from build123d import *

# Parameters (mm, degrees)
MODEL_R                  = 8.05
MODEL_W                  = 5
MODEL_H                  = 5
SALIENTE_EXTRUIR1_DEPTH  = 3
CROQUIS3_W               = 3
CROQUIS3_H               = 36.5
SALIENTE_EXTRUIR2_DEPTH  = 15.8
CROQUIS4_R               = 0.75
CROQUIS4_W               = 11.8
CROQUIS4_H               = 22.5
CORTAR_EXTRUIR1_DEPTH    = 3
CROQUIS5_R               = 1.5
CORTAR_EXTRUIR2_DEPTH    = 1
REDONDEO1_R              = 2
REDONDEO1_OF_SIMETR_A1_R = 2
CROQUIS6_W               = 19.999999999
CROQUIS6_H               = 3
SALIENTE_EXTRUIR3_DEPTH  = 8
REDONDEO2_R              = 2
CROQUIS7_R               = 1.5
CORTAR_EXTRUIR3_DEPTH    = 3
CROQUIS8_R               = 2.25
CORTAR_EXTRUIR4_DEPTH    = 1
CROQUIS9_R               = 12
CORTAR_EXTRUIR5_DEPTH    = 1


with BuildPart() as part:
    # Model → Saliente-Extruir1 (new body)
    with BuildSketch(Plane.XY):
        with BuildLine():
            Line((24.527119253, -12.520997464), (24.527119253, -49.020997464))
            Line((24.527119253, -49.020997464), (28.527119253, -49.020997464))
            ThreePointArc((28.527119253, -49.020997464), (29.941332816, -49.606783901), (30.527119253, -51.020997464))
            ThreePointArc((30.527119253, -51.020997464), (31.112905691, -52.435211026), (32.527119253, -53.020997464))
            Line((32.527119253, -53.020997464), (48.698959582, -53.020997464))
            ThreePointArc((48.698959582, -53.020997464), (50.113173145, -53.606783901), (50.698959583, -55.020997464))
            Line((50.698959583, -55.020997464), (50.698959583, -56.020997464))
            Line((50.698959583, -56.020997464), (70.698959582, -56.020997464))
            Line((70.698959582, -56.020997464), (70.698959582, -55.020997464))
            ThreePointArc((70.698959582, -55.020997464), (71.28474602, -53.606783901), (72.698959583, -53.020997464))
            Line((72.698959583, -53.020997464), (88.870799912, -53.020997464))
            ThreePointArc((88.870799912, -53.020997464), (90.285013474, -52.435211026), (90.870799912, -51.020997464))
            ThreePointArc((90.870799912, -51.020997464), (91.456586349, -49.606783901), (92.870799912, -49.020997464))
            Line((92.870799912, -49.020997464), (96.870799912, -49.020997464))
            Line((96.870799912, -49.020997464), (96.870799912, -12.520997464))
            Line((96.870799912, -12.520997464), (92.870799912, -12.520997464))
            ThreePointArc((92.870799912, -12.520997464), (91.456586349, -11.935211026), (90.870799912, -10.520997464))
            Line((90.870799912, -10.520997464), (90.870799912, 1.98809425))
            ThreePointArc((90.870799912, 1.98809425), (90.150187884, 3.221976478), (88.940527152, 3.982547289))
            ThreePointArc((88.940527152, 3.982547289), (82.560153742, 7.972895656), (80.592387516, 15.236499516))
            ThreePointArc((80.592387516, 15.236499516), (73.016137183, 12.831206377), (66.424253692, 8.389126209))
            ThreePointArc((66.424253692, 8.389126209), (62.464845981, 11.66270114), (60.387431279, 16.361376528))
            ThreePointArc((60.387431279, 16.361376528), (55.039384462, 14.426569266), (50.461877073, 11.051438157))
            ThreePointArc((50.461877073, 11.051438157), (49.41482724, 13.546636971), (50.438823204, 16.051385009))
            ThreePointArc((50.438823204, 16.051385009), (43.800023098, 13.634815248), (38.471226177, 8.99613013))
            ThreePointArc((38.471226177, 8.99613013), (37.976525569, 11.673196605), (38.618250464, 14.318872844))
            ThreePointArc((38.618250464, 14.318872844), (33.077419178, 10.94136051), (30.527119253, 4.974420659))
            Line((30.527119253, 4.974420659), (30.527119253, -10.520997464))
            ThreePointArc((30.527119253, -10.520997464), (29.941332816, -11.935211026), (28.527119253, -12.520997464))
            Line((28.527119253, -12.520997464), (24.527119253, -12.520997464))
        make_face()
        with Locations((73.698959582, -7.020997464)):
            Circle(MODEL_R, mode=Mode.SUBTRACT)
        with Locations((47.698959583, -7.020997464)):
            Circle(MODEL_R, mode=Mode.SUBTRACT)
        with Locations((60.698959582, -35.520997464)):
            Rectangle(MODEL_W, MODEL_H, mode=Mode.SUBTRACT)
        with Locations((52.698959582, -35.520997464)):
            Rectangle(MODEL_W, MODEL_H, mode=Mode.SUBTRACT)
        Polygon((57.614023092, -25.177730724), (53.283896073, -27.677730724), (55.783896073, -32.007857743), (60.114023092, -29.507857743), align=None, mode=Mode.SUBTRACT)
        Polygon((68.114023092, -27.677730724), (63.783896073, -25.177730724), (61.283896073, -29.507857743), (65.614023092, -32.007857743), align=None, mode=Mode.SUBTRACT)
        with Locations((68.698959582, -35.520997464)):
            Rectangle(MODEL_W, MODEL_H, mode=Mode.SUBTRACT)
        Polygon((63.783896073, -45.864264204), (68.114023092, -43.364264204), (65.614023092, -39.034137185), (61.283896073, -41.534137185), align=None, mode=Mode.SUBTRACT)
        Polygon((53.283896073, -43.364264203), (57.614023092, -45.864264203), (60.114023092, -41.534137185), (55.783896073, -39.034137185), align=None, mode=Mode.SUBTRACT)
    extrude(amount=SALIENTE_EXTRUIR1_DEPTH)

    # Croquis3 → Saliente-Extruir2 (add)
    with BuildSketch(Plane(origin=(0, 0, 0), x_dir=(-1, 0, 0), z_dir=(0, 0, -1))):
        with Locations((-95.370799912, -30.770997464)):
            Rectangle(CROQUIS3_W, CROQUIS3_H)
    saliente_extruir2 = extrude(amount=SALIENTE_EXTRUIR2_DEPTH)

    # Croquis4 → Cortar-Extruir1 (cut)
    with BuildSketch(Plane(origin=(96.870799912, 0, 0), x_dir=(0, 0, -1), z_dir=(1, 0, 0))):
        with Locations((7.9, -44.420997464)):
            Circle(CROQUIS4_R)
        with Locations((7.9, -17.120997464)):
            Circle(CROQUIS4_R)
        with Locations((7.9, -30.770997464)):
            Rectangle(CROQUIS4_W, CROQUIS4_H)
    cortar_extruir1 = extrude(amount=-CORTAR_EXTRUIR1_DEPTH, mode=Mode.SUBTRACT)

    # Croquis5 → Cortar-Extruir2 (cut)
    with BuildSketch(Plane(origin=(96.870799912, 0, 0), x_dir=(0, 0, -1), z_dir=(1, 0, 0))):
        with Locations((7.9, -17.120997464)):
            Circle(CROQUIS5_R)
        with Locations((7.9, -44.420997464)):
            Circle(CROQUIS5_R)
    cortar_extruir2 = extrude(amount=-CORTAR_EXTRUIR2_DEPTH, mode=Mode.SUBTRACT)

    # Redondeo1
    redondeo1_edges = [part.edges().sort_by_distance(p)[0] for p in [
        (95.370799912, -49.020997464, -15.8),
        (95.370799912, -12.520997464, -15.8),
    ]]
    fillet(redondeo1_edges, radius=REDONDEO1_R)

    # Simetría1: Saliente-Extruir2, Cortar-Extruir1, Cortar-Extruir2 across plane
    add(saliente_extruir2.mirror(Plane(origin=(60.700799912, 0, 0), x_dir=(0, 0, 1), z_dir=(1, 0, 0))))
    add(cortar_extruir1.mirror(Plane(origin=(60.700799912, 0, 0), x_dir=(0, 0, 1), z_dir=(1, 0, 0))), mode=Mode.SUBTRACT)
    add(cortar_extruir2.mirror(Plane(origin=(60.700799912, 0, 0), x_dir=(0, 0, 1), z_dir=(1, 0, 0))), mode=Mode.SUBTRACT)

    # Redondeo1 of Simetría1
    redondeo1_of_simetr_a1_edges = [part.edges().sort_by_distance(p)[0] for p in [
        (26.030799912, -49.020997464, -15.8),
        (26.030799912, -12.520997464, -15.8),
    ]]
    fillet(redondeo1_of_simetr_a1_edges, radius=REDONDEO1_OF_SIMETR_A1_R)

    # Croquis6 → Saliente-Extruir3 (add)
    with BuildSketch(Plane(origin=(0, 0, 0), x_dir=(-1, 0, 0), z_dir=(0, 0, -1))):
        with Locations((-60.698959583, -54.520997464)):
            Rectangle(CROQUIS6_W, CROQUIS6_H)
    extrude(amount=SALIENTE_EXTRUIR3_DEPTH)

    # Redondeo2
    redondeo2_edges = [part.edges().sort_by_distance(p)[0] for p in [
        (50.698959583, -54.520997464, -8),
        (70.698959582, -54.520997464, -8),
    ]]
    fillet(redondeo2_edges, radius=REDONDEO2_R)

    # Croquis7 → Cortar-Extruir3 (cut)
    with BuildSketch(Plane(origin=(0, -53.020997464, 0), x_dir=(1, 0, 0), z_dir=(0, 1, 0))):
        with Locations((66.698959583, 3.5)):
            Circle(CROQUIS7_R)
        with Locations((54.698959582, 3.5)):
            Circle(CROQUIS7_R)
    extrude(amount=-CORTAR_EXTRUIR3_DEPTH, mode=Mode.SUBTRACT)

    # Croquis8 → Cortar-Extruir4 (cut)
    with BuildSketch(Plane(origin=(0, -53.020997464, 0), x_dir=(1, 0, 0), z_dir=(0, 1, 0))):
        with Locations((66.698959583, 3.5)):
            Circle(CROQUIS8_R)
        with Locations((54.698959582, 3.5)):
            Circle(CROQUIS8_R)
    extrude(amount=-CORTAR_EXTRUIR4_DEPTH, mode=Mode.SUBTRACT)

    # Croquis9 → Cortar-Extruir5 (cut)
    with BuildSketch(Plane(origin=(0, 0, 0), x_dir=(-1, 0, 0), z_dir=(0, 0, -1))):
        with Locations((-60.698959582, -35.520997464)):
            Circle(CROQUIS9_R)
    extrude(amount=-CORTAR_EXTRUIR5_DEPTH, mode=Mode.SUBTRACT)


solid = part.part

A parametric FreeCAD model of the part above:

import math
import FreeCAD as App
import Part
import Sketcher
Q = App.Units.Quantity


def edges_at(feature, points):
    """Names of the edges that pass closest to the given points."""
    edges = feature.Shape.Edges
    near = lambda p: min(range(len(edges)), key=lambda i: edges[i].distToShape(Part.Vertex(*p))[0])
    return sorted({f"Edge{near(p) + 1}" for p in points})

doc = App.newDocument("Part")
body = doc.addObject("PartDesign::Body", "Body")

sketch1 = body.newObject("Sketcher::SketchObject", "Sketch")
sketch1.AttachmentSupport = (doc.getObject("XY_Plane"), [""])
sketch1.MapMode = "FlatFace"
sketch1.addGeometry([
    Part.LineSegment(App.Vector(24.527119, -12.520997, 0), App.Vector(24.527119, -49.020997, 0)),
    Part.LineSegment(App.Vector(24.527119, -49.020997, 0), App.Vector(28.527119, -49.020997, 0)),
    Part.ArcOfCircle(Part.Circle(App.Vector(28.527119, -51.020997, 0), App.Vector(0, 0, 1), 2), math.radians(0), math.radians(90)),
    Part.ArcOfCircle(Part.Circle(App.Vector(32.527119, -51.020997, 0), App.Vector(0, 0, 1), 2), math.radians(-180), math.radians(-90)),
    Part.LineSegment(App.Vector(32.527119, -53.020997, 0), App.Vector(48.69896, -53.020997, 0)),
    Part.ArcOfCircle(Part.Circle(App.Vector(48.69896, -55.020997, 0), App.Vector(0, 0, 1), 2), math.radians(0), math.radians(90)),
    Part.LineSegment(App.Vector(50.69896, -55.020997, 0), App.Vector(50.69896, -56.020997, 0)),
    Part.LineSegment(App.Vector(50.69896, -56.020997, 0), App.Vector(70.69896, -56.020997, 0)),
    Part.LineSegment(App.Vector(70.69896, -56.020997, 0), App.Vector(70.69896, -55.020997, 0)),
    Part.ArcOfCircle(Part.Circle(App.Vector(72.69896, -55.020997, 0), App.Vector(0, 0, 1), 2), math.radians(90), math.radians(180)),
    Part.LineSegment(App.Vector(72.69896, -53.020997, 0), App.Vector(88.8708, -53.020997, 0)),
    Part.ArcOfCircle(Part.Circle(App.Vector(88.8708, -51.020997, 0), App.Vector(0, 0, 1), 2), math.radians(-90), math.radians(0)),
    Part.ArcOfCircle(Part.Circle(App.Vector(92.8708, -51.020997, 0), App.Vector(0, 0, 1), 2), math.radians(90), math.radians(180)),
    Part.LineSegment(App.Vector(92.8708, -49.020997, 0), App.Vector(96.8708, -49.020997, 0)),
    Part.LineSegment(App.Vector(96.8708, -49.020997, 0), App.Vector(96.8708, -12.520997, 0)),
    Part.LineSegment(App.Vector(96.8708, -12.520997, 0), App.Vector(92.8708, -12.520997, 0)),
    Part.ArcOfCircle(Part.Circle(App.Vector(92.8708, -10.520997, 0), App.Vector(0, 0, 1), 2), math.radians(180), math.radians(270)),
    Part.LineSegment(App.Vector(90.8708, -10.520997, 0), App.Vector(90.8708, 1.988094, 0)),
    Part.ArcOfCircle(Part.Circle(App.Vector(87.994466, 1.135625, 0), App.Vector(0, 0, 1), 3), math.radians(16.508438), math.radians(71.617836)),
    Part.ArcOfCircle(Part.Circle(App.Vector(90.83885, 14.114002, 0), App.Vector(0, 0, 1), 10.307764), math.radians(173.74819), math.radians(259.387581)),
    Part.ArcOfCircle(Part.Circle(App.Vector(85.170016, -12.316798, 0), App.Vector(0, 0, 1), 27.930966), math.radians(99.432804), math.radians(132.15559)),
    Part.ArcOfCircle(Part.Circle(App.Vector(71.378093, 18.412074, 0), App.Vector(0, 0, 1), 11.18034), math.radians(-169.430975), math.radians(-116.300872)),
    Part.ArcOfCircle(Part.Circle(App.Vector(64.379976, -3.033247, 0), App.Vector(0, 0, 1), 19.801309), math.radians(101.632314), math.radians(134.659156)),
    Part.ArcOfCircle(Part.Circle(App.Vector(52.950324, 13.562939, 0), App.Vector(0, 0, 1), 3.535534), math.radians(135.264179), math.radians(225.264179)),
    Part.ArcOfCircle(Part.Circle(App.Vector(53.626856, -3.034119, 0), App.Vector(0, 0, 1), 19.349935), math.radians(99.483105), math.radians(141.558127)),
    Part.ArcOfCircle(Part.Circle(App.Vector(44.493242, 11.493192, 0), App.Vector(0, 0, 1), 6.519202), math.radians(154.313956), math.radians(202.521611)),
    Part.ArcOfCircle(Part.Circle(App.Vector(41.124657, 3.973456, 0), App.Vector(0, 0, 1), 10.644704), math.radians(103.618763), math.radians(174.604272)),
    Part.LineSegment(App.Vector(30.527119, 4.974421, 0), App.Vector(30.527119, -10.520997, 0)),
    Part.ArcOfCircle(Part.Circle(App.Vector(28.527119, -10.520997, 0), App.Vector(0, 0, 1), 2), math.radians(-90), math.radians(0)),
    Part.LineSegment(App.Vector(28.527119, -12.520997, 0), App.Vector(24.527119, -12.520997, 0)),
    Part.LineSegment(App.Vector(57.614023, -45.864264, 0), App.Vector(53.283896, -43.364264, 0)),
    Part.LineSegment(App.Vector(53.283896, -43.364264, 0), App.Vector(55.783896, -39.034137, 0)),
    Part.LineSegment(App.Vector(55.783896, -39.034137, 0), App.Vector(60.114023, -41.534137, 0)),
    Part.LineSegment(App.Vector(60.114023, -41.534137, 0), App.Vector(57.614023, -45.864264, 0)),
    Part.LineSegment(App.Vector(55.19896, -38.020997, 0), App.Vector(50.19896, -38.020997, 0)),
    Part.LineSegment(App.Vector(50.19896, -38.020997, 0), App.Vector(50.19896, -33.020997, 0)),
    Part.LineSegment(App.Vector(50.19896, -33.020997, 0), App.Vector(55.19896, -33.020997, 0)),
    Part.LineSegment(App.Vector(55.19896, -33.020997, 0), App.Vector(55.19896, -38.020997, 0)),
    Part.LineSegment(App.Vector(63.19896, -38.020997, 0), App.Vector(58.19896, -38.020997, 0)),
    Part.LineSegment(App.Vector(58.19896, -38.020997, 0), App.Vector(58.19896, -33.020997, 0)),
    Part.LineSegment(App.Vector(58.19896, -33.020997, 0), App.Vector(63.19896, -33.020997, 0)),
    Part.LineSegment(App.Vector(63.19896, -33.020997, 0), App.Vector(63.19896, -38.020997, 0)),
    Part.LineSegment(App.Vector(53.283896, -27.677731, 0), App.Vector(57.614023, -25.177731, 0)),
    Part.LineSegment(App.Vector(57.614023, -25.177731, 0), App.Vector(60.114023, -29.507858, 0)),
    Part.LineSegment(App.Vector(60.114023, -29.507858, 0), App.Vector(55.783896, -32.007858, 0)),
    Part.LineSegment(App.Vector(55.783896, -32.007858, 0), App.Vector(53.283896, -27.677731, 0)),
    Part.LineSegment(App.Vector(68.114023, -43.364264, 0), App.Vector(63.783896, -45.864264, 0)),
    Part.LineSegment(App.Vector(63.783896, -45.864264, 0), App.Vector(61.283896, -41.534137, 0)),
    Part.LineSegment(App.Vector(61.283896, -41.534137, 0), App.Vector(65.614023, -39.034137, 0)),
    Part.LineSegment(App.Vector(65.614023, -39.034137, 0), App.Vector(68.114023, -43.364264, 0)),
    Part.LineSegment(App.Vector(71.19896, -38.020997, 0), App.Vector(66.19896, -38.020997, 0)),
    Part.LineSegment(App.Vector(66.19896, -38.020997, 0), App.Vector(66.19896, -33.020997, 0)),
    Part.LineSegment(App.Vector(66.19896, -33.020997, 0), App.Vector(71.19896, -33.020997, 0)),
    Part.LineSegment(App.Vector(71.19896, -33.020997, 0), App.Vector(71.19896, -38.020997, 0)),
    Part.LineSegment(App.Vector(63.783896, -25.177731, 0), App.Vector(68.114023, -27.677731, 0)),
    Part.LineSegment(App.Vector(68.114023, -27.677731, 0), App.Vector(65.614023, -32.007858, 0)),
    Part.LineSegment(App.Vector(65.614023, -32.007858, 0), App.Vector(61.283896, -29.507858, 0)),
    Part.LineSegment(App.Vector(61.283896, -29.507858, 0), App.Vector(63.783896, -25.177731, 0)),
    Part.Circle(App.Vector(47.69896, -7.020997, 0), App.Vector(0, 0, 1), 8.05),
    Part.Circle(App.Vector(73.69896, -7.020997, 0), App.Vector(0, 0, 1), 8.05),
], False)
sketch1.addConstraint([
    Sketcher.Constraint("Coincident", 0, 2, 1, 1),
    Sketcher.Constraint("Tangent", 1, 2, 2, 2),
    Sketcher.Constraint("Tangent", 2, 1, 3, 1),
    Sketcher.Constraint("Tangent", 3, 2, 4, 1),
    Sketcher.Constraint("Tangent", 4, 2, 5, 2),
    Sketcher.Constraint("Tangent", 5, 1, 6, 1),
    Sketcher.Constraint("Coincident", 6, 2, 7, 1),
    Sketcher.Constraint("Coincident", 7, 2, 8, 1),
    Sketcher.Constraint("Tangent", 8, 2, 9, 2),
    Sketcher.Constraint("Tangent", 9, 1, 10, 1),
    Sketcher.Constraint("Tangent", 10, 2, 11, 1),
    Sketcher.Constraint("Tangent", 11, 2, 12, 2),
    Sketcher.Constraint("Tangent", 12, 1, 13, 1),
    Sketcher.Constraint("Coincident", 13, 2, 14, 1),
    Sketcher.Constraint("Coincident", 14, 2, 15, 1),
    Sketcher.Constraint("Tangent", 15, 2, 16, 2),
    Sketcher.Constraint("Tangent", 16, 1, 17, 1),
    Sketcher.Constraint("Coincident", 17, 2, 18, 1),
    Sketcher.Constraint("Coincident", 18, 2, 19, 2),
    Sketcher.Constraint("Coincident", 19, 1, 20, 1),
    Sketcher.Constraint("Coincident", 20, 2, 21, 2),
    Sketcher.Constraint("Coincident", 21, 1, 22, 1),
    Sketcher.Constraint("Coincident", 22, 2, 23, 2),
    Sketcher.Constraint("Coincident", 23, 1, 24, 1),
    Sketcher.Constraint("Coincident", 24, 2, 25, 2),
    Sketcher.Constraint("Coincident", 25, 1, 26, 1),
    Sketcher.Constraint("Coincident", 26, 2, 27, 1),
    Sketcher.Constraint("Tangent", 27, 2, 28, 2),
    Sketcher.Constraint("Tangent", 28, 1, 29, 1),
    Sketcher.Constraint("Coincident", 29, 2, 0, 1),
    Sketcher.Constraint("Coincident", 30, 2, 31, 1),
    Sketcher.Constraint("Coincident", 31, 2, 32, 1),
    Sketcher.Constraint("Coincident", 32, 2, 33, 1),
    Sketcher.Constraint("Coincident", 33, 2, 30, 1),
    Sketcher.Constraint("Coincident", 34, 2, 35, 1),
    Sketcher.Constraint("Coincident", 35, 2, 36, 1),
    Sketcher.Constraint("Coincident", 36, 2, 37, 1),
    Sketcher.Constraint("Coincident", 37, 2, 34, 1),
    Sketcher.Constraint("Coincident", 38, 2, 39, 1),
    Sketcher.Constraint("Coincident", 39, 2, 40, 1),
    Sketcher.Constraint("Coincident", 40, 2, 41, 1),
    Sketcher.Constraint("Coincident", 41, 2, 38, 1),
    Sketcher.Constraint("Coincident", 42, 2, 43, 1),
    Sketcher.Constraint("Coincident", 43, 2, 44, 1),
    Sketcher.Constraint("Coincident", 44, 2, 45, 1),
    Sketcher.Constraint("Coincident", 45, 2, 42, 1),
    Sketcher.Constraint("Coincident", 46, 2, 47, 1),
    Sketcher.Constraint("Coincident", 47, 2, 48, 1),
    Sketcher.Constraint("Coincident", 48, 2, 49, 1),
    Sketcher.Constraint("Coincident", 49, 2, 46, 1),
    Sketcher.Constraint("Coincident", 50, 2, 51, 1),
    Sketcher.Constraint("Coincident", 51, 2, 52, 1),
    Sketcher.Constraint("Coincident", 52, 2, 53, 1),
    Sketcher.Constraint("Coincident", 53, 2, 50, 1),
    Sketcher.Constraint("Coincident", 54, 2, 55, 1),
    Sketcher.Constraint("Coincident", 55, 2, 56, 1),
    Sketcher.Constraint("Coincident", 56, 2, 57, 1),
    Sketcher.Constraint("Coincident", 57, 2, 54, 1),
    Sketcher.Constraint("Vertical", 0),
    Sketcher.Constraint("Horizontal", 1),
    Sketcher.Constraint("Horizontal", 4),
    Sketcher.Constraint("Vertical", 6),
    Sketcher.Constraint("Horizontal", 7),
    Sketcher.Constraint("Vertical", 8),
    Sketcher.Constraint("Horizontal", 10),
    Sketcher.Constraint("Horizontal", 13),
    Sketcher.Constraint("Vertical", 14),
    Sketcher.Constraint("Horizontal", 15),
    Sketcher.Constraint("Vertical", 17),
    Sketcher.Constraint("Vertical", 27),
    Sketcher.Constraint("Horizontal", 29),
    Sketcher.Constraint("Horizontal", 34),
    Sketcher.Constraint("Vertical", 35),
    Sketcher.Constraint("Horizontal", 36),
    Sketcher.Constraint("Vertical", 37),
    Sketcher.Constraint("Horizontal", 38),
    Sketcher.Constraint("Vertical", 39),
    Sketcher.Constraint("Horizontal", 40),
    Sketcher.Constraint("Vertical", 41),
    Sketcher.Constraint("Horizontal", 50),
    Sketcher.Constraint("Vertical", 51),
    Sketcher.Constraint("Horizontal", 52),
    Sketcher.Constraint("Vertical", 53),
    Sketcher.Constraint("Equal", 2, 3),
    Sketcher.Constraint("Equal", 3, 5),
    Sketcher.Constraint("Equal", 5, 9),
    Sketcher.Constraint("Equal", 9, 11),
    Sketcher.Constraint("Equal", 11, 12),
    Sketcher.Constraint("Equal", 12, 16),
    Sketcher.Constraint("Equal", 16, 28),
    Sketcher.Constraint("Equal", 58, 59),
    Sketcher.Constraint("Perpendicular", 30, 31),
    Sketcher.Constraint("Perpendicular", 31, 32),
    Sketcher.Constraint("Perpendicular", 32, 33),
    Sketcher.Constraint("Perpendicular", 42, 43),
    Sketcher.Constraint("Perpendicular", 43, 44),
    Sketcher.Constraint("Perpendicular", 44, 45),
    Sketcher.Constraint("Perpendicular", 45, 46),
    Sketcher.Constraint("Perpendicular", 46, 47),
    Sketcher.Constraint("Perpendicular", 47, 48),
    Sketcher.Constraint("Perpendicular", 48, 49),
    Sketcher.Constraint("Perpendicular", 33, 54),
    Sketcher.Constraint("Perpendicular", 54, 55),
    Sketcher.Constraint("Perpendicular", 55, 56),
    Sketcher.Constraint("Perpendicular", 56, 57),
    Sketcher.Constraint("Horizontal", 2, 3, 3, 3),
    Sketcher.Constraint("Horizontal", 5, 3, 9, 3),
    Sketcher.Constraint("Horizontal", 11, 3, 12, 3),
    Sketcher.Constraint("Horizontal", 16, 3, 28, 3),
    Sketcher.Constraint("Horizontal", 58, 3, 59, 3),
    Sketcher.Constraint("Horizontal", 37, 2, 38, 2),
    Sketcher.Constraint("Horizontal", 36, 2, 39, 2),
    Sketcher.Constraint("Horizontal", 33, 2, 46, 2),
    Sketcher.Constraint("Horizontal", 32, 2, 47, 2),
    Sketcher.Constraint("Horizontal", 31, 2, 48, 2),
    Sketcher.Constraint("Horizontal", 41, 2, 50, 2),
    Sketcher.Constraint("Horizontal", 40, 2, 51, 2),
    Sketcher.Constraint("Horizontal", 45, 2, 54, 2),
    Sketcher.Constraint("Horizontal", 44, 2, 55, 2),
    Sketcher.Constraint("Horizontal", 43, 2, 56, 2),
    Sketcher.Constraint("Vertical", 12, 3, 16, 3),
    Sketcher.Constraint("Vertical", 2, 3, 28, 3),
    Sketcher.Constraint("Vertical", 33, 2, 42, 2),
    Sketcher.Constraint("Vertical", 32, 2, 43, 2),
    Sketcher.Constraint("Vertical", 31, 2, 44, 2),
    Sketcher.Constraint("Vertical", 49, 2, 54, 2),
    Sketcher.Constraint("Vertical", 48, 2, 55, 2),
    Sketcher.Constraint("Equal", 4, 10),
    Sketcher.Constraint("Equal", 1, 13),
    Sketcher.Constraint("Equal", 36, 38),
    Sketcher.Constraint("Equal", 40, 50),
    Sketcher.Constraint("Equal", 52, 35),
    Sketcher.Constraint("Equal", 30, 31),
    Sketcher.Constraint("Radius", 2, 2.0),
    Sketcher.Constraint("Radius", 18, 3.0),
    Sketcher.Constraint("Diameter", 58, 16.1),
    Sketcher.Constraint("DistanceX", 1, 1, 1, 2, 4.0),
    Sketcher.Constraint("DistanceX", 7, 1, 7, 2, 20.0),
    Sketcher.Constraint("DistanceX", 34, 2, 34, 1, 5.0),
    Sketcher.Constraint("DistanceY", 6, 2, 6, 1, 1.0),
    Sketcher.Constraint("Angle", 30, Q("150 deg")),
    Sketcher.Constraint("Distance", 30, 5.0),
    Sketcher.Constraint("DistanceY", 0, 2, 0, 1, 36.5),
    Sketcher.Constraint("Radius", 21, 11.18034),
    Sketcher.Constraint("Radius", 22, 19.801309),
    Sketcher.Constraint("DistanceY", -1, 1, 19, 3, 14.114002),
    Sketcher.Constraint("Radius", 19, 10.307764),
    Sketcher.Constraint("Radius", 20, 27.930966),
    Sketcher.Constraint("Radius", 23, 3.535534),
    Sketcher.Constraint("Radius", 24, 19.349935),
    Sketcher.Constraint("Radius", 25, 6.519202),
    Sketcher.Constraint("Radius", 26, 10.644704),
    Sketcher.Constraint("DistanceX", 4, 1, 4, 2, 16.17184),
    Sketcher.Constraint("DistanceY", 17, 1, 17, 2, 12.509092),
    Sketcher.Constraint("DistanceY", 27, 2, 27, 1, 15.495418),
    Sketcher.Constraint("DistanceX", -1, 1, 11, 3, 88.8708),
    Sketcher.Constraint("DistanceY", 20, 3, -1, 1, 12.316798),
    Sketcher.Constraint("DistanceY", -1, 1, 19, 1, 15.2365),
    Sketcher.Constraint("DistanceX", -1, 1, 19, 3, 90.83885),
    Sketcher.Constraint("DistanceY", -1, 1, 23, 3, 13.562939),
    Sketcher.Constraint("DistanceY", 24, 3, -1, 1, 3.034119),
    Sketcher.Constraint("DistanceX", -1, 1, 58, 3, 47.69896),
    Sketcher.Constraint("DistanceX", -1, 1, 59, 3, 73.69896),
    Sketcher.Constraint("DistanceX", -1, 1, 21, 1, 60.387431),
    Sketcher.Constraint("DistanceY", -1, 1, 22, 2, 11.051438),
    Sketcher.Constraint("DistanceY", -1, 1, 24, 2, 8.99613),
    Sketcher.Constraint("DistanceX", -1, 1, 25, 1, 38.61825),
    Sketcher.Constraint("DistanceY", -1, 1, 26, 2, 4.974421),
    Sketcher.Constraint("DistanceX", -1, 1, 34, 2, 50.19896),
    Sketcher.Constraint("DistanceX", -1, 1, 38, 2, 58.19896),
    Sketcher.Constraint("DistanceY", 42, 2, -1, 1, 25.177731),
    Sketcher.Constraint("DistanceX", -1, 1, 50, 2, 66.19896),
    Sketcher.Constraint("DistanceX", -1, 1, 18, 3, 87.994466),
    Sketcher.Constraint("DistanceX", -1, 1, 21, 3, 71.378093),
    Sketcher.Constraint("DistanceY", -1, 1, 21, 3, 18.412074),
    Sketcher.Constraint("DistanceX", -1, 1, 22, 3, 64.379976),
    Sketcher.Constraint("DistanceX", -1, 1, 24, 3, 53.626856),
    Sketcher.Constraint("DistanceX", -1, 1, 25, 3, 44.493242),
    Sketcher.Constraint("DistanceY", 58, 3, -1, 1, 7.020997),
    Sketcher.Constraint("DistanceX", -1, 1, 30, 2, 53.283896),
    Sketcher.Constraint("DistanceY", 30, 2, -1, 1, 43.364264),
    Sketcher.Constraint("DistanceY", 34, 2, -1, 1, 38.020997),
    Sketcher.Constraint("DistanceX", -1, 1, 46, 2, 63.783896),
])
pad1 = body.newObject("PartDesign::Pad", "Pad")
pad1.Profile = sketch1
pad1.Length = 3

sketch2 = body.newObject("Sketcher::SketchObject", "Sketch001")
sketch2.AttachmentSupport = (doc.getObject("XY_Plane"), [""])
sketch2.MapMode = "FlatFace"
sketch2.addGeometry([
    Part.LineSegment(App.Vector(96.8708, -12.520997, 0), App.Vector(96.8708, -49.020997, 0)),
    Part.LineSegment(App.Vector(96.8708, -49.020997, 0), App.Vector(93.8708, -49.020997, 0)),
    Part.LineSegment(App.Vector(93.8708, -49.020997, 0), App.Vector(93.8708, -12.520997, 0)),
    Part.LineSegment(App.Vector(93.8708, -12.520997, 0), App.Vector(96.8708, -12.520997, 0)),
], False)
sketch2.addConstraint([
    Sketcher.Constraint("Coincident", 0, 2, 1, 1),
    Sketcher.Constraint("Coincident", 1, 2, 2, 1),
    Sketcher.Constraint("Coincident", 2, 2, 3, 1),
    Sketcher.Constraint("Coincident", 3, 2, 0, 1),
    Sketcher.Constraint("Vertical", 0),
    Sketcher.Constraint("Horizontal", 1),
    Sketcher.Constraint("Vertical", 2),
    Sketcher.Constraint("Horizontal", 3),
    Sketcher.Constraint("DistanceX", 1, 2, 1, 1, 3.0),
    Sketcher.Constraint("DistanceY", 0, 2, 0, 1, 36.5),
    Sketcher.Constraint("DistanceX", -1, 1, 0, 2, 96.8708),
    Sketcher.Constraint("DistanceY", 0, 2, -1, 1, 49.020997),
])
pad2 = body.newObject("PartDesign::Pad", "Pad001")
pad2.Profile = sketch2
pad2.Length = 15.8
pad2.Reversed = True

sketch3 = body.newObject("Sketcher::SketchObject", "Sketch002")
sketch3.AttachmentSupport = (doc.getObject("YZ_Plane"), [""])
sketch3.MapMode = "FlatFace"
sketch3.AttachmentOffset = App.Placement(App.Vector(0, 0, 96.8708), App.Rotation())
sketch3.addGeometry([
    Part.Circle(App.Vector(-44.420997, -7.9, 0), App.Vector(0, 0, 1), 0.75),
    Part.Circle(App.Vector(-17.120997, -7.9, 0), App.Vector(0, 0, 1), 0.75),
    Part.LineSegment(App.Vector(-19.520997, -2, 0), App.Vector(-42.020997, -2, 0)),
    Part.LineSegment(App.Vector(-42.020997, -2, 0), App.Vector(-42.020997, -13.8, 0)),
    Part.LineSegment(App.Vector(-42.020997, -13.8, 0), App.Vector(-19.520997, -13.8, 0)),
    Part.LineSegment(App.Vector(-19.520997, -13.8, 0), App.Vector(-19.520997, -2, 0)),
], False)
sketch3.addConstraint([
    Sketcher.Constraint("Coincident", 2, 2, 3, 1),
    Sketcher.Constraint("Coincident", 3, 2, 4, 1),
    Sketcher.Constraint("Coincident", 4, 2, 5, 1),
    Sketcher.Constraint("Coincident", 5, 2, 2, 1),
    Sketcher.Constraint("Horizontal", 2),
    Sketcher.Constraint("Vertical", 3),
    Sketcher.Constraint("Horizontal", 4),
    Sketcher.Constraint("Vertical", 5),
    Sketcher.Constraint("Equal", 0, 1),
    Sketcher.Constraint("Horizontal", 0, 3, 1, 3),
    Sketcher.Constraint("Diameter", 0, 1.5),
    Sketcher.Constraint("DistanceX", 2, 2, 2, 1, 22.5),
    Sketcher.Constraint("DistanceY", 3, 2, 3, 1, 11.8),
    Sketcher.Constraint("DistanceY", 2, 2, -1, 1, 2.0),
    Sketcher.Constraint("DistanceY", 0, 3, -1, 1, 7.9),
    Sketcher.Constraint("DistanceX", 0, 3, 1, 3, 27.3),
    Sketcher.Constraint("DistanceX", 0, 3, 2, 2, 2.4),
    Sketcher.Constraint("DistanceX", 0, 3, -1, 1, 44.420997),
])
pocket1 = body.newObject("PartDesign::Pocket", "Pocket")
pocket1.Profile = sketch3
pocket1.Length = 3

sketch4 = body.newObject("Sketcher::SketchObject", "Sketch003")
sketch4.AttachmentSupport = (doc.getObject("YZ_Plane"), [""])
sketch4.MapMode = "FlatFace"
sketch4.AttachmentOffset = App.Placement(App.Vector(0, 0, 96.8708), App.Rotation())
sketch4.addGeometry([
    Part.Circle(App.Vector(-17.120997, -7.9, 0), App.Vector(0, 0, 1), 1.5),
    Part.Circle(App.Vector(-44.420997, -7.9, 0), App.Vector(0, 0, 1), 1.5),
], False)
sketch4.addConstraint([
    Sketcher.Constraint("Equal", 0, 1),
    Sketcher.Constraint("Horizontal", 0, 3, 1, 3),
    Sketcher.Constraint("Diameter", 0, 3.0),
    Sketcher.Constraint("DistanceY", 0, 3, -1, 1, 7.9),
    Sketcher.Constraint("DistanceX", 1, 3, 0, 3, 27.3),
    Sketcher.Constraint("DistanceX", 0, 3, -1, 1, 17.120997),
])
pocket2 = body.newObject("PartDesign::Pocket", "Pocket001")
pocket2.Profile = sketch4
pocket2.Length = 1
doc.recompute()

fillet = body.newObject("PartDesign::Fillet", "Fillet")
fillet.Base = (pocket2, edges_at(pocket2, [(95.371, -49.021, -15.8), (95.371, -12.521, -15.8)]))
fillet.Radius = 2
doc.recompute()

datumplane = body.newObject("PartDesign::Plane", "DatumPlane")
datumplane.AttachmentSupport = (doc.getObject("YZ_Plane"), [""])
datumplane.MapMode = "FlatFace"
datumplane.AttachmentOffset = App.Placement(App.Vector(0, 0, 60.7008), App.Rotation())
mirrored = body.newObject("PartDesign::Mirrored", "Mirrored")
mirrored.Originals = [pad2, pocket1, pocket2]
mirrored.MirrorPlane = (datumplane, [""])
body.Tip = mirrored
doc.recompute()

fillet2 = body.newObject("PartDesign::Fillet", "Fillet001")
fillet2.Base = (mirrored, edges_at(mirrored, [(26.031, -49.021, -15.8), (26.031, -12.521, -15.8)]))
fillet2.Radius = 2

sketch5 = body.newObject("Sketcher::SketchObject", "Sketch004")
sketch5.AttachmentSupport = (doc.getObject("XY_Plane"), [""])
sketch5.MapMode = "FlatFace"
sketch5.addGeometry([
    Part.LineSegment(App.Vector(70.69896, -53.020997, 0), App.Vector(70.69896, -56.020997, 0)),
    Part.LineSegment(App.Vector(70.69896, -56.020997, 0), App.Vector(50.69896, -56.020997, 0)),
    Part.LineSegment(App.Vector(50.69896, -56.020997, 0), App.Vector(50.69896, -53.020997, 0)),
    Part.LineSegment(App.Vector(50.69896, -53.020997, 0), App.Vector(70.69896, -53.020997, 0)),
], False)
sketch5.addConstraint([
    Sketcher.Constraint("Coincident", 0, 2, 1, 1),
    Sketcher.Constraint("Coincident", 1, 2, 2, 1),
    Sketcher.Constraint("Coincident", 2, 2, 3, 1),
    Sketcher.Constraint("Coincident", 3, 2, 0, 1),
    Sketcher.Constraint("Vertical", 0),
    Sketcher.Constraint("Horizontal", 1),
    Sketcher.Constraint("Vertical", 2),
    Sketcher.Constraint("Horizontal", 3),
    Sketcher.Constraint("DistanceX", 1, 2, 1, 1, 20.0),
    Sketcher.Constraint("DistanceY", 0, 2, 0, 1, 3.0),
    Sketcher.Constraint("DistanceX", -1, 1, 0, 2, 70.69896),
    Sketcher.Constraint("DistanceY", 0, 2, -1, 1, 56.020997),
])
pad3 = body.newObject("PartDesign::Pad", "Pad002")
pad3.Profile = sketch5
pad3.Length = 8
pad3.Reversed = True
doc.recompute()

fillet3 = body.newObject("PartDesign::Fillet", "Fillet002")
fillet3.Base = (pad3, edges_at(pad3, [(50.699, -54.521, -8), (70.699, -54.521, -8)]))
fillet3.Radius = 2

sketch6 = body.newObject("Sketcher::SketchObject", "Sketch005")
sketch6.AttachmentSupport = (doc.getObject("XZ_Plane"), [""])
sketch6.MapMode = "FlatFace"
sketch6.AttachmentOffset = App.Placement(App.Vector(0, 0, 53.020997), App.Rotation())
sketch6.addGeometry([
    Part.Circle(App.Vector(66.69896, -3.5, 0), App.Vector(0, 0, 1), 1.5),
    Part.Circle(App.Vector(54.69896, -3.5, 0), App.Vector(0, 0, 1), 1.5),
], False)
sketch6.addConstraint([
    Sketcher.Constraint("Equal", 0, 1),
    Sketcher.Constraint("Horizontal", 0, 3, 1, 3),
    Sketcher.Constraint("Diameter", 0, 3.0),
    Sketcher.Constraint("DistanceX", 1, 3, 0, 3, 12.0),
    Sketcher.Constraint("DistanceY", 0, 3, -1, 1, 3.5),
    Sketcher.Constraint("DistanceX", -1, 1, 0, 3, 66.69896),
])
pocket3 = body.newObject("PartDesign::Pocket", "Pocket002")
pocket3.Profile = sketch6
pocket3.Length = 3
pocket3.Reversed = True

sketch7 = body.newObject("Sketcher::SketchObject", "Sketch006")
sketch7.AttachmentSupport = (doc.getObject("XZ_Plane"), [""])
sketch7.MapMode = "FlatFace"
sketch7.AttachmentOffset = App.Placement(App.Vector(0, 0, 53.020997), App.Rotation())
sketch7.addGeometry([
    Part.Circle(App.Vector(66.69896, -3.5, 0), App.Vector(0, 0, 1), 2.25),
    Part.Circle(App.Vector(54.69896, -3.5, 0), App.Vector(0, 0, 1), 2.25),
], False)
sketch7.addConstraint([
    Sketcher.Constraint("Equal", 0, 1),
    Sketcher.Constraint("Horizontal", 0, 3, 1, 3),
    Sketcher.Constraint("Diameter", 0, 4.5),
    Sketcher.Constraint("DistanceX", 1, 3, 0, 3, 12.0),
    Sketcher.Constraint("DistanceY", 0, 3, -1, 1, 3.5),
    Sketcher.Constraint("DistanceX", -1, 1, 0, 3, 66.69896),
])
pocket4 = body.newObject("PartDesign::Pocket", "Pocket003")
pocket4.Profile = sketch7
pocket4.Length = 1
pocket4.Reversed = True

sketch8 = body.newObject("Sketcher::SketchObject", "Sketch007")
sketch8.AttachmentSupport = (doc.getObject("XY_Plane"), [""])
sketch8.MapMode = "FlatFace"
sketch8.addGeometry(Part.Circle(App.Vector(60.69896, -35.520997, 0), App.Vector(0, 0, 1), 12), False)
sketch8.addConstraint([
    Sketcher.Constraint("Diameter", 0, 24.0),
    Sketcher.Constraint("DistanceX", -1, 1, 0, 3, 60.69896),
    Sketcher.Constraint("DistanceY", 0, 3, -1, 1, 35.520997),
])
pocket5 = body.newObject("PartDesign::Pocket", "Pocket004")
pocket5.Profile = sketch8
pocket5.Length = 1
pocket5.Reversed = True

doc.recompute()
